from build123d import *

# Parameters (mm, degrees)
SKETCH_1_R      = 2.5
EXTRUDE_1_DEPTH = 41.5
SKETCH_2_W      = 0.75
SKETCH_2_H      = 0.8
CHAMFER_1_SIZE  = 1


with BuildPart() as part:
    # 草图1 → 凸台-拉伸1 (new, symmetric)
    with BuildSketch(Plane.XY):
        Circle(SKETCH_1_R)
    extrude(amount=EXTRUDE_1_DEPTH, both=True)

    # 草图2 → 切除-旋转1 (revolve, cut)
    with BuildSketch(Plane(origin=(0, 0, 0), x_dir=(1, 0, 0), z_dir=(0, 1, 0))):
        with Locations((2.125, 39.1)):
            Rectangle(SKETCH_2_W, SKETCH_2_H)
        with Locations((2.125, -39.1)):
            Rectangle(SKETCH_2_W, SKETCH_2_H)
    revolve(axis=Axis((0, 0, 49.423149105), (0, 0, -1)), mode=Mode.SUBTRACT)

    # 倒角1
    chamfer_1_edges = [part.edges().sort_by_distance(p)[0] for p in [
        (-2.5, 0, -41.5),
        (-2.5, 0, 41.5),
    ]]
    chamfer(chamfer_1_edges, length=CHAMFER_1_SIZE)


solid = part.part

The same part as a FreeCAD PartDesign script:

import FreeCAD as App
import Part
import Sketcher


def edges_at(feature, points):
    """Names of the edges that pass closest to the given points."""
    edges = feature.Shape.Edges
    near = lambda p: min(range(len(edges)), key=lambda i: edges[i].distToShape(Part.Vertex(*p))[0])
    return sorted({f"Edge{near(p) + 1}" for p in points})

doc = App.newDocument("Part")
body = doc.addObject("PartDesign::Body", "Body")

sketch1 = body.newObject("Sketcher::SketchObject", "Sketch")
sketch1.AttachmentSupport = (doc.getObject("XY_Plane"), [""])
sketch1.MapMode = "FlatFace"
sketch1.addGeometry(Part.Circle(App.Vector(0, 0, 0), App.Vector(0, 0, 1), 2.5), False)
sketch1.addConstraint(Sketcher.Constraint("Coincident", 0, 3, -1, 1))
sketch1.addConstraint(Sketcher.Constraint("Diameter", 0, 5.0))
pad1 = body.newObject("PartDesign::Pad", "Pad")
pad1.Profile = sketch1
pad1.Length = 83
pad1.Midplane = True

sketch2 = body.newObject("Sketcher::SketchObject", "Sketch001")
sketch2.AttachmentSupport = (doc.getObject("XZ_Plane"), [""])
sketch2.MapMode = "FlatFace"
sketch2.addGeometry(Part.LineSegment(App.Vector(1.8, -39.5, 0), App.Vector(1.8, -38.7, 0)), False)
sketch2.addGeometry(Part.LineSegment(App.Vector(1.8, -38.7, 0), App.Vector(2.5, -38.7, 0)), False)
sketch2.addGeometry(Part.LineSegment(App.Vector(2.5, -38.7, 0), App.Vector(2.5, -39.5, 0)), False)
sketch2.addGeometry(Part.LineSegment(App.Vector(2.5, -39.5, 0), App.Vector(1.8, -39.5, 0)), False)
sketch2.addGeometry(Part.LineSegment(App.Vector(1.8, 38.7, 0), App.Vector(1.8, 39.5, 0)), False)
sketch2.addGeometry(Part.LineSegment(App.Vector(1.8, 39.5, 0), App.Vector(2.5, 39.5, 0)), False)
sketch2.addGeometry(Part.LineSegment(App.Vector(2.5, 39.5, 0), App.Vector(2.5, 38.7, 0)), False)
sketch2.addGeometry(Part.LineSegment(App.Vector(2.5, 38.7, 0), App.Vector(1.8, 38.7, 0)), False)
sketch2.addConstraint(Sketcher.Constraint("Coincident", 0, 2, 1, 1))
sketch2.addConstraint(Sketcher.Constraint("Coincident", 1, 2, 2, 1))
sketch2.addConstraint(Sketcher.Constraint("Coincident", 2, 2, 3, 1))
sketch2.addConstraint(Sketcher.Constraint("Coincident", 3, 2, 0, 1))
sketch2.addConstraint(Sketcher.Constraint("Coincident", 4, 2, 5, 1))
sketch2.addConstraint(Sketcher.Constraint("Coincident", 5, 2, 6, 1))
sketch2.addConstraint(Sketcher.Constraint("Coincident", 6, 2, 7, 1))
sketch2.addConstraint(Sketcher.Constraint("Coincident", 7, 2, 4, 1))
sketch2.addConstraint(Sketcher.Constraint("Vertical", 0))
sketch2.addConstraint(Sketcher.Constraint("Horizontal", 1))
sketch2.addConstraint(Sketcher.Constraint("Vertical", 2))
sketch2.addConstraint(Sketcher.Constraint("Horizontal", 3))
sketch2.addConstraint(Sketcher.Constraint("Vertical", 4))
sketch2.addConstraint(Sketcher.Constraint("Horizontal", 5))
sketch2.addConstraint(Sketcher.Constraint("Vertical", 6))
sketch2.addConstraint(Sketcher.Constraint("Horizontal", 7))
sketch2.addConstraint(Sketcher.Constraint("Symmetric", 3, 2, 4, 2, -1))
sketch2.addConstraint(Sketcher.Constraint("Symmetric", 1, 2, 6, 2, -1))
sketch2.addConstraint(Sketcher.Constraint("DistanceY", 0, 1, 0, 2, 0.8))
sketch2.addConstraint(Sketcher.Constraint("DistanceY", 3, 2, 4, 2, 79.0))
sketch2.addConstraint(Sketcher.Constraint("DistanceX", 1, 1, 1, 2, 0.75))
sketch2.addConstraint(Sketcher.Constraint("DistanceX", -1, 1, 1, 2, 2.5))
groove = body.newObject("PartDesign::Groove", "Groove")
groove.Profile = sketch2
groove.ReferenceAxis = (sketch2, ["V_Axis"])
groove.Angle = 360
doc.recompute()

chamfer = body.newObject("PartDesign::Chamfer", "Chamfer")
chamfer.Base = (groove, edges_at(groove, [(-2.5, 0, -41.5), (-2.5, 0, 41.5)]))
chamfer.Size = 1

doc.recompute()
